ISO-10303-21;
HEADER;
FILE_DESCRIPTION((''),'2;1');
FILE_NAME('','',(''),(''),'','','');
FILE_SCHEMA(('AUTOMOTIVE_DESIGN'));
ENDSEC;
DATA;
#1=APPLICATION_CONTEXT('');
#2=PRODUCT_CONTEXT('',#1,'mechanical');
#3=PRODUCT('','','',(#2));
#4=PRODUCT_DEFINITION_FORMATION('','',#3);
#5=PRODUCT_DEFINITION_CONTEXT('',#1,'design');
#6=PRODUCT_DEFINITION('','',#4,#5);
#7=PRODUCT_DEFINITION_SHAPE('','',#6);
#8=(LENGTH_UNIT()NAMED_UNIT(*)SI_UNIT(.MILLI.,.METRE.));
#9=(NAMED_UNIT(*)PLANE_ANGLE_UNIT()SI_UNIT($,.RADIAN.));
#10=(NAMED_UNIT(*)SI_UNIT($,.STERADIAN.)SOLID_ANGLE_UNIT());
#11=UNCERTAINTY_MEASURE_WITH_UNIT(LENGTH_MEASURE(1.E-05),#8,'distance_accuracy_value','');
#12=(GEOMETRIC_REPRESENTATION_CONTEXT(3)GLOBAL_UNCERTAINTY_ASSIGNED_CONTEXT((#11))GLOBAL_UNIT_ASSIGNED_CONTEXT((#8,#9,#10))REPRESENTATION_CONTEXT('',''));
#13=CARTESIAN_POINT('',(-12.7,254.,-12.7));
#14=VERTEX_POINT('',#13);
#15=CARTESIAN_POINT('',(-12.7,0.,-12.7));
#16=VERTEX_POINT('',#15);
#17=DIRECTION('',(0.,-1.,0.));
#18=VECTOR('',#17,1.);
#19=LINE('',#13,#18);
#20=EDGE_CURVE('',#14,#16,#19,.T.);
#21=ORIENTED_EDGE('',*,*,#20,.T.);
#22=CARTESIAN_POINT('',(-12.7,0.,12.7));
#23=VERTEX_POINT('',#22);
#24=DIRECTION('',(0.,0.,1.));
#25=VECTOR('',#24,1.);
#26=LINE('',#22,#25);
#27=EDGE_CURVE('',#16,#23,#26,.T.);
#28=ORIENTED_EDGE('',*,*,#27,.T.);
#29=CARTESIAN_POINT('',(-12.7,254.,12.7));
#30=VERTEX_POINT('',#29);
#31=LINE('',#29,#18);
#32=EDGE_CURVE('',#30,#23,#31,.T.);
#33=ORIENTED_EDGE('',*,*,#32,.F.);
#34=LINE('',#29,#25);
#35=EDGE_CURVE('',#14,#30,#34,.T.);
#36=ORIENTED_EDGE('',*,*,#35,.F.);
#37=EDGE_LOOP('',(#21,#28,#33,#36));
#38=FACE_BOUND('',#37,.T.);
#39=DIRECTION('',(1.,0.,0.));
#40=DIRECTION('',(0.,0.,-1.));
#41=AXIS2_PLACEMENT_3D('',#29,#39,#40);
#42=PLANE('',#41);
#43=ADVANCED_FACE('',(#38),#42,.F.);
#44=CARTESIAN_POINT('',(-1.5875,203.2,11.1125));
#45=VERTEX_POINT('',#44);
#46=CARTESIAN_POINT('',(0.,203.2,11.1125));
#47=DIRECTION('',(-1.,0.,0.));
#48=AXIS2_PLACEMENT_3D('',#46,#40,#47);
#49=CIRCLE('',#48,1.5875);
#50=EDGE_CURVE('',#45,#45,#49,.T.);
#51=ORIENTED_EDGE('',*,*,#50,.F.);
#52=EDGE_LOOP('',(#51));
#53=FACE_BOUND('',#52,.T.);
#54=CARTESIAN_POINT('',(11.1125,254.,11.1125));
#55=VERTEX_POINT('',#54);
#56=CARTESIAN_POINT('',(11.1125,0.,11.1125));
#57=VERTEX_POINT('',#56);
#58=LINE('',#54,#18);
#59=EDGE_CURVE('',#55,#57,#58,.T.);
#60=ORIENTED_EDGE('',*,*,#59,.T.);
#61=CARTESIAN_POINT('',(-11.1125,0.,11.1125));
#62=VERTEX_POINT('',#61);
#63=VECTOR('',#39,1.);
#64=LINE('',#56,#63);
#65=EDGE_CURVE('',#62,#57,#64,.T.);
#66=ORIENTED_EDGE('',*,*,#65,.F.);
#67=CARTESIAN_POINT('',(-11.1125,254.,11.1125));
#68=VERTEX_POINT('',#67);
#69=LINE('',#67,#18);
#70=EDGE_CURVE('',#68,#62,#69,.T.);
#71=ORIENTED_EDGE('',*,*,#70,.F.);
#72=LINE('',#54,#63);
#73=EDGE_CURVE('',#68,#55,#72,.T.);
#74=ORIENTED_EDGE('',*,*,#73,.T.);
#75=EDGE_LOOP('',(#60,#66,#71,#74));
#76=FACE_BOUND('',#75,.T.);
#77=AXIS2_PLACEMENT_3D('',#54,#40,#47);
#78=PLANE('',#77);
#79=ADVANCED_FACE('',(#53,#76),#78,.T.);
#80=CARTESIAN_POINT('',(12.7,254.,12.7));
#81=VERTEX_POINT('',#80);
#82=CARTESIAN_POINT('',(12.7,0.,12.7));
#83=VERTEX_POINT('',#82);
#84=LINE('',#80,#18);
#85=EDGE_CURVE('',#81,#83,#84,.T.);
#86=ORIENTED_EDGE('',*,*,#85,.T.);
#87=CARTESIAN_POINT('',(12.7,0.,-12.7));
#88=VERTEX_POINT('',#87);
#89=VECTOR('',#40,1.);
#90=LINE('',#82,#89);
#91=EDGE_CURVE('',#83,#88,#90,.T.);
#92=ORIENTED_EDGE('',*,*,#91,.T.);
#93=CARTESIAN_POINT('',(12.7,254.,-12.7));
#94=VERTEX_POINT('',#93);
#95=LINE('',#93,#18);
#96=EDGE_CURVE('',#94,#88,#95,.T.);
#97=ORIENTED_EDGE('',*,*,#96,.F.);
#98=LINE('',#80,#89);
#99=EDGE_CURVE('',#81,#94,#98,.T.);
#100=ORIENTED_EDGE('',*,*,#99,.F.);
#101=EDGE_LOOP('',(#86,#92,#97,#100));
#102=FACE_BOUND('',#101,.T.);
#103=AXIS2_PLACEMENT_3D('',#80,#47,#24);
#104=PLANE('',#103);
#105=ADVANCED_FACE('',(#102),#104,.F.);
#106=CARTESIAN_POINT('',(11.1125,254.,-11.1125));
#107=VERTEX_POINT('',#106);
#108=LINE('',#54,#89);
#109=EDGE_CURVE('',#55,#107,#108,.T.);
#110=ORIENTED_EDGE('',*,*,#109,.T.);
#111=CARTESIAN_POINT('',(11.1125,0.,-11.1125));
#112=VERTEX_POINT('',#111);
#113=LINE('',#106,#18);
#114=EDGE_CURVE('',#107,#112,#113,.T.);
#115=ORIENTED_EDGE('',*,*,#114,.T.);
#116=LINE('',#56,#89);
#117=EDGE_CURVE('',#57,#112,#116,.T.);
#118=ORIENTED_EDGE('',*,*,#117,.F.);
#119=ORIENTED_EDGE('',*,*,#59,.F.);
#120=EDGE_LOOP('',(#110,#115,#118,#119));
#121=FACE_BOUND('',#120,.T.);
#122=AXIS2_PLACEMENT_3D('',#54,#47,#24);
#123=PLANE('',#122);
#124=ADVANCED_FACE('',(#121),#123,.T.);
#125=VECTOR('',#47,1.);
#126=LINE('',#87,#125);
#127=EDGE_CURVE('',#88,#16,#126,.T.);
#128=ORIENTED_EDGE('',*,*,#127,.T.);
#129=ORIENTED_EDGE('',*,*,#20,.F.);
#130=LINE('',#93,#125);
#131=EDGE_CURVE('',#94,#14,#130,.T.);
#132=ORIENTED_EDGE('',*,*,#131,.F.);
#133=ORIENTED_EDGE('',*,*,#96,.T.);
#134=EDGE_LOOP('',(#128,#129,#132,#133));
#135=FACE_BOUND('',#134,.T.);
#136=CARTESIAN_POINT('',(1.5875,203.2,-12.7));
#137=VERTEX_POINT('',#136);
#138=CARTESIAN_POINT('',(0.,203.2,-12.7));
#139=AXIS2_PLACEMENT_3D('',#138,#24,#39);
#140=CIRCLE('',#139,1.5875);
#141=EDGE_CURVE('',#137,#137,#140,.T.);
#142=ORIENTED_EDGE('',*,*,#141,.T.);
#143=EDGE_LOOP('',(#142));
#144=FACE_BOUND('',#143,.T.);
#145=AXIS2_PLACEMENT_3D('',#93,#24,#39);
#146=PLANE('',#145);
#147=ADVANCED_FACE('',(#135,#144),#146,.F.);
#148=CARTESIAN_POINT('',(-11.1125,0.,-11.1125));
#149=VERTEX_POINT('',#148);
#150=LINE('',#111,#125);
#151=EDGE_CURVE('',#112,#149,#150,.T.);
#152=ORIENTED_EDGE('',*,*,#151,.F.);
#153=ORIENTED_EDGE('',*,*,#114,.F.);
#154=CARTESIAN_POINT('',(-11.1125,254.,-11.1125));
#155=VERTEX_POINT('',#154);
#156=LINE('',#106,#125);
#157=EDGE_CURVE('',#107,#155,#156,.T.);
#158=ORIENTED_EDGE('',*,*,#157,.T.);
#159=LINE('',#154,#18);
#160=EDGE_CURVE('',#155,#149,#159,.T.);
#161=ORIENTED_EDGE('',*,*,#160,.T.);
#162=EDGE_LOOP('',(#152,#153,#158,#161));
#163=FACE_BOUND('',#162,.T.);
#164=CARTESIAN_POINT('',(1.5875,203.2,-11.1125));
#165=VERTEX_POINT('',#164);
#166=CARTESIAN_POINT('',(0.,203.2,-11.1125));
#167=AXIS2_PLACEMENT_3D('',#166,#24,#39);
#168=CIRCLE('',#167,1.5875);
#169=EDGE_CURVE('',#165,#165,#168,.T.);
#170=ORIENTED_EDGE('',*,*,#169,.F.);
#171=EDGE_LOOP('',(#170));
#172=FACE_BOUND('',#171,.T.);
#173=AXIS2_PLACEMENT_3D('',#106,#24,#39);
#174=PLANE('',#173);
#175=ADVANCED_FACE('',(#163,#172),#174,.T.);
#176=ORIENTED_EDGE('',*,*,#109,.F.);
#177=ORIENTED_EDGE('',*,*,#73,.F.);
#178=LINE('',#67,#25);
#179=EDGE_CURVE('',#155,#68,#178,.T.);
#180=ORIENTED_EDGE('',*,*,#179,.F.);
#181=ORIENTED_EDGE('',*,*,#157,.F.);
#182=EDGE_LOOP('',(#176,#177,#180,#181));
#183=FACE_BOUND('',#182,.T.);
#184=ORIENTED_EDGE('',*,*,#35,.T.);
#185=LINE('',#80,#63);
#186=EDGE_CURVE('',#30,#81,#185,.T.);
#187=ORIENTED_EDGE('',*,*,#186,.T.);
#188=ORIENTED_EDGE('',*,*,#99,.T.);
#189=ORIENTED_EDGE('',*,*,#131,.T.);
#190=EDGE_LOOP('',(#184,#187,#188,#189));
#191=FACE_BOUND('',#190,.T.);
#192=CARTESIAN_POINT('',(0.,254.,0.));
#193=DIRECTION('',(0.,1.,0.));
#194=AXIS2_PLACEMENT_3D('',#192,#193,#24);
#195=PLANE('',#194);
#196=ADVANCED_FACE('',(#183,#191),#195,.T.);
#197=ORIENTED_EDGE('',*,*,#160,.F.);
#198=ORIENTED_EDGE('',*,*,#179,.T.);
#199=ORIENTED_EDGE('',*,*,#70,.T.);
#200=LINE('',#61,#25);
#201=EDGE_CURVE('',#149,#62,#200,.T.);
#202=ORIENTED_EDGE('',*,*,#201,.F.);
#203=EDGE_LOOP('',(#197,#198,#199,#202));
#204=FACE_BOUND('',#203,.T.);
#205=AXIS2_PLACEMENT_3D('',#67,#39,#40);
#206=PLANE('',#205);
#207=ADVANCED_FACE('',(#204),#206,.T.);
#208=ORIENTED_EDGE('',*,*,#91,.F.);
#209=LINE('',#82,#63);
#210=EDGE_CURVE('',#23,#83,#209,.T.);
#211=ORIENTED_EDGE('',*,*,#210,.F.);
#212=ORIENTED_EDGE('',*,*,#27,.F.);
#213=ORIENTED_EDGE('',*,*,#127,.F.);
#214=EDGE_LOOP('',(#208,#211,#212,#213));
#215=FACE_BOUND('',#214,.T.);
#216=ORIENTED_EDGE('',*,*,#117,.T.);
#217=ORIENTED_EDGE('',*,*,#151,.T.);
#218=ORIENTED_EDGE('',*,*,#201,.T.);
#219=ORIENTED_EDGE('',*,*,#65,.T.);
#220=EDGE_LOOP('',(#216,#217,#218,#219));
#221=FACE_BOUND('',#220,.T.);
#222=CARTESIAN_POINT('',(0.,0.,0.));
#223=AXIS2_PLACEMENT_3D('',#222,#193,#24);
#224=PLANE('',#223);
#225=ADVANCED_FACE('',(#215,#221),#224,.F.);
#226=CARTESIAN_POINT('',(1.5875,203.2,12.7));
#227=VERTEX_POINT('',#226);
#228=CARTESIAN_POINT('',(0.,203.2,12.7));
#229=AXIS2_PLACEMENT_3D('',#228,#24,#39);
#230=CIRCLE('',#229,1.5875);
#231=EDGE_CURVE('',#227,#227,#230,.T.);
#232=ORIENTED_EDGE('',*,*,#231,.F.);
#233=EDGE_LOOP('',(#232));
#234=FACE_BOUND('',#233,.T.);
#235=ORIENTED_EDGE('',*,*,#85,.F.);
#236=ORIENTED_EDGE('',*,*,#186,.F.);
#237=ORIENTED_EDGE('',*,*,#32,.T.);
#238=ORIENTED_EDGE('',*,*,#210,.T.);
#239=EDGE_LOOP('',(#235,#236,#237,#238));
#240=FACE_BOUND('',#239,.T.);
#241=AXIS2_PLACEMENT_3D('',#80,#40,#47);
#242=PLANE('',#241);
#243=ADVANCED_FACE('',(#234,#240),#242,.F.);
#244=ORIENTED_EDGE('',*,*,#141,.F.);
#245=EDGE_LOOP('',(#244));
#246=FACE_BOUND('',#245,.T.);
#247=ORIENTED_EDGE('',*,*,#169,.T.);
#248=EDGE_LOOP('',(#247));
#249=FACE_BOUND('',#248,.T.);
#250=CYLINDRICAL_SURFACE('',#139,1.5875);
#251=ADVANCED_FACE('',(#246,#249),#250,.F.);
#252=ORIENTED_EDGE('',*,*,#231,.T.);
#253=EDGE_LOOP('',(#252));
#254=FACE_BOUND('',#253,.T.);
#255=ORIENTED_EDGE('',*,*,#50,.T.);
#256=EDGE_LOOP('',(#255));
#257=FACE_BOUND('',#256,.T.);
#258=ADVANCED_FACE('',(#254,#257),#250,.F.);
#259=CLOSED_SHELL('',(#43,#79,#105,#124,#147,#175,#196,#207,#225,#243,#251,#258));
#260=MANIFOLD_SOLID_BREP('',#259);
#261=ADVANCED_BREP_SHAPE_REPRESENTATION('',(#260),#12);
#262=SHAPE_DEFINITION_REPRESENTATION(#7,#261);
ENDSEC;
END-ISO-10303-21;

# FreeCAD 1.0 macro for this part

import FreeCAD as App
import Part
import Sketcher
Q = App.Units.Quantity

doc = App.newDocument("Part")
body = doc.addObject("PartDesign::Body", "Body")

sketch1 = doc.addObject("Sketcher::SketchObject", "Sketch")
body.addObject(sketch1)
sketch1.AttachmentSupport = (doc.XZ_Plane, [""])
sketch1.MapMode = "FlatFace"
sketch1.addGeometry([
    Part.LineSegment(App.Vector(-13, -13, 0), App.Vector(-13, 13, 0)),
    Part.LineSegment(App.Vector(-13, 13, 0), App.Vector(13, 13, 0)),
    Part.LineSegment(App.Vector(13, 13, 0), App.Vector(13, -13, 0)),
    Part.LineSegment(App.Vector(13, -13, 0), App.Vector(-13, -13, 0)),
    Part.LineSegment(App.Vector(11, 11, 0), App.Vector(-11, 11, 0)),
    Part.LineSegment(App.Vector(-11, 11, 0), App.Vector(-11, -11, 0)),
    Part.LineSegment(App.Vector(-11, -11, 0), App.Vector(11, -11, 0)),
    Part.LineSegment(App.Vector(11, -11, 0), App.Vector(11, 11, 0)),
], False)
sketch1.addConstraint([
    Sketcher.Constraint("Coincident", 0, 2, 1, 1),
    Sketcher.Constraint("Coincident", 1, 2, 2, 1),
    Sketcher.Constraint("Coincident", 2, 2, 3, 1),
    Sketcher.Constraint("Coincident", 3, 2, 0, 1),
    Sketcher.Constraint("Coincident", 4, 2, 5, 1),
    Sketcher.Constraint("Coincident", 5, 2, 6, 1),
    Sketcher.Constraint("Coincident", 6, 2, 7, 1),
    Sketcher.Constraint("Coincident", 7, 2, 4, 1),
    Sketcher.Constraint("Vertical", 0),
    Sketcher.Constraint("Horizontal", 1),
    Sketcher.Constraint("Vertical", 2),
    Sketcher.Constraint("Horizontal", 3),
    Sketcher.Constraint("Horizontal", 4),
    Sketcher.Constraint("Vertical", 5),
    Sketcher.Constraint("Horizontal", 6),
    Sketcher.Constraint("Vertical", 7),
    Sketcher.Constraint("Symmetric", 0, 2, 2, 2, -1, 1),
    Sketcher.Constraint("Symmetric", 4, 2, 6, 2, -1, 1),
    Sketcher.Constraint("Equal", 3, 0),
    Sketcher.Constraint("Equal", 6, 5),
    Sketcher.Constraint("DistanceX", 1, 1, 1, 2, Q("1 in")),
    Sketcher.Constraint("DistanceX", 4, 2, 4, 1, Q("0.875 in")),
])
pad1 = doc.addObject("PartDesign::Pad", "Pad")
body.addObject(pad1)
pad1.Profile = sketch1
pad1.Length = Q("10 in")
pad1.Reversed = True

sketch2 = doc.addObject("Sketcher::SketchObject", "Sketch001")
body.addObject(sketch2)
sketch2.AttachmentSupport = (doc.XY_Plane, [""])
sketch2.MapMode = "FlatFace"
sketch2.AttachmentOffset = App.Placement(App.Vector(0, 0, 0.5 * 25.4), App.Rotation())
sketch2.addGeometry(Part.Circle(App.Vector(0, 203.2, 0), App.Vector(0, 0, 1), 1.6), False)
sketch2.addConstraint([
    Sketcher.Constraint("PointOnObject", 0, 3, -2),
    Sketcher.Constraint("Diameter", 0, Q("0.125 in")),
    Sketcher.Constraint("DistanceY", -1, 1, 0, 3, Q("8 in")),
])
pocket1 = doc.addObject("PartDesign::Pocket", "Pocket")
body.addObject(pocket1)
pocket1.Profile = sketch2
pocket1.Type = "ThroughAll"

doc.recompute()
